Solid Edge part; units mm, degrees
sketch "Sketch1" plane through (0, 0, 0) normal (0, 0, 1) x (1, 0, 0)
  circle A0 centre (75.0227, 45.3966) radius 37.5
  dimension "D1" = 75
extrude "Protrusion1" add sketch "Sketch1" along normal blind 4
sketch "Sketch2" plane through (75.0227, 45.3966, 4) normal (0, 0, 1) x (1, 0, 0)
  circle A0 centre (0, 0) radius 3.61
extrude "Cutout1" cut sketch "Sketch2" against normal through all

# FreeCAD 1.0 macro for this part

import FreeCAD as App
import Part
import Sketcher

V = App.Vector
Q = App.Units.Quantity

doc = App.newDocument("Part")
body = doc.addObject("PartDesign::Body", "Body")

# Sketch on XY plane
sketch1 = doc.addObject("Sketcher::SketchObject", "Sketch")
body.addObject(sketch1)
sketch1.AttachmentSupport = (doc.XY_Plane, [""])
sketch1.MapMode = "FlatFace"
sketch1.addGeometry(Part.Circle(V(75, 45, 0), V(0, 0, 1), 38), False)
sketch1.addConstraint([
    Sketcher.Constraint("Diameter", 0, Q("75 mm")),
    Sketcher.Constraint("DistanceX", -1, 1, 0, 3, Q("75.0227 mm")),
    Sketcher.Constraint("DistanceY", -1, 1, 0, 3, Q("45.3966 mm")),
])
pad1 = doc.addObject("PartDesign::Pad", "Pad")
body.addObject(pad1)
pad1.Profile = sketch1
pad1.Length = 4

# Sketch on XY plane
sketch2 = doc.addObject("Sketcher::SketchObject", "Sketch001")
body.addObject(sketch2)
sketch2.AttachmentSupport = (doc.XY_Plane, [""])
sketch2.MapMode = "FlatFace"
sketch2.AttachmentOffset = App.Placement(V(0, 0, 4), App.Rotation())
sketch2.addGeometry(Part.Circle(V(75, 45.4, 0), V(0, 0, 1), 3.6), False)
sketch2.addConstraint([
    Sketcher.Constraint("Diameter", 0, Q("7.22 mm")),
    Sketcher.Constraint("DistanceX", -1, 1, 0, 3, Q("75.0227 mm")),
    Sketcher.Constraint("DistanceY", -1, 1, 0, 3, Q("45.3966 mm")),
])
pocket1 = doc.addObject("PartDesign::Pocket", "Pocket")
body.addObject(pocket1)
pocket1.Profile = sketch2
pocket1.Type = "ThroughAll"

doc.recompute()
